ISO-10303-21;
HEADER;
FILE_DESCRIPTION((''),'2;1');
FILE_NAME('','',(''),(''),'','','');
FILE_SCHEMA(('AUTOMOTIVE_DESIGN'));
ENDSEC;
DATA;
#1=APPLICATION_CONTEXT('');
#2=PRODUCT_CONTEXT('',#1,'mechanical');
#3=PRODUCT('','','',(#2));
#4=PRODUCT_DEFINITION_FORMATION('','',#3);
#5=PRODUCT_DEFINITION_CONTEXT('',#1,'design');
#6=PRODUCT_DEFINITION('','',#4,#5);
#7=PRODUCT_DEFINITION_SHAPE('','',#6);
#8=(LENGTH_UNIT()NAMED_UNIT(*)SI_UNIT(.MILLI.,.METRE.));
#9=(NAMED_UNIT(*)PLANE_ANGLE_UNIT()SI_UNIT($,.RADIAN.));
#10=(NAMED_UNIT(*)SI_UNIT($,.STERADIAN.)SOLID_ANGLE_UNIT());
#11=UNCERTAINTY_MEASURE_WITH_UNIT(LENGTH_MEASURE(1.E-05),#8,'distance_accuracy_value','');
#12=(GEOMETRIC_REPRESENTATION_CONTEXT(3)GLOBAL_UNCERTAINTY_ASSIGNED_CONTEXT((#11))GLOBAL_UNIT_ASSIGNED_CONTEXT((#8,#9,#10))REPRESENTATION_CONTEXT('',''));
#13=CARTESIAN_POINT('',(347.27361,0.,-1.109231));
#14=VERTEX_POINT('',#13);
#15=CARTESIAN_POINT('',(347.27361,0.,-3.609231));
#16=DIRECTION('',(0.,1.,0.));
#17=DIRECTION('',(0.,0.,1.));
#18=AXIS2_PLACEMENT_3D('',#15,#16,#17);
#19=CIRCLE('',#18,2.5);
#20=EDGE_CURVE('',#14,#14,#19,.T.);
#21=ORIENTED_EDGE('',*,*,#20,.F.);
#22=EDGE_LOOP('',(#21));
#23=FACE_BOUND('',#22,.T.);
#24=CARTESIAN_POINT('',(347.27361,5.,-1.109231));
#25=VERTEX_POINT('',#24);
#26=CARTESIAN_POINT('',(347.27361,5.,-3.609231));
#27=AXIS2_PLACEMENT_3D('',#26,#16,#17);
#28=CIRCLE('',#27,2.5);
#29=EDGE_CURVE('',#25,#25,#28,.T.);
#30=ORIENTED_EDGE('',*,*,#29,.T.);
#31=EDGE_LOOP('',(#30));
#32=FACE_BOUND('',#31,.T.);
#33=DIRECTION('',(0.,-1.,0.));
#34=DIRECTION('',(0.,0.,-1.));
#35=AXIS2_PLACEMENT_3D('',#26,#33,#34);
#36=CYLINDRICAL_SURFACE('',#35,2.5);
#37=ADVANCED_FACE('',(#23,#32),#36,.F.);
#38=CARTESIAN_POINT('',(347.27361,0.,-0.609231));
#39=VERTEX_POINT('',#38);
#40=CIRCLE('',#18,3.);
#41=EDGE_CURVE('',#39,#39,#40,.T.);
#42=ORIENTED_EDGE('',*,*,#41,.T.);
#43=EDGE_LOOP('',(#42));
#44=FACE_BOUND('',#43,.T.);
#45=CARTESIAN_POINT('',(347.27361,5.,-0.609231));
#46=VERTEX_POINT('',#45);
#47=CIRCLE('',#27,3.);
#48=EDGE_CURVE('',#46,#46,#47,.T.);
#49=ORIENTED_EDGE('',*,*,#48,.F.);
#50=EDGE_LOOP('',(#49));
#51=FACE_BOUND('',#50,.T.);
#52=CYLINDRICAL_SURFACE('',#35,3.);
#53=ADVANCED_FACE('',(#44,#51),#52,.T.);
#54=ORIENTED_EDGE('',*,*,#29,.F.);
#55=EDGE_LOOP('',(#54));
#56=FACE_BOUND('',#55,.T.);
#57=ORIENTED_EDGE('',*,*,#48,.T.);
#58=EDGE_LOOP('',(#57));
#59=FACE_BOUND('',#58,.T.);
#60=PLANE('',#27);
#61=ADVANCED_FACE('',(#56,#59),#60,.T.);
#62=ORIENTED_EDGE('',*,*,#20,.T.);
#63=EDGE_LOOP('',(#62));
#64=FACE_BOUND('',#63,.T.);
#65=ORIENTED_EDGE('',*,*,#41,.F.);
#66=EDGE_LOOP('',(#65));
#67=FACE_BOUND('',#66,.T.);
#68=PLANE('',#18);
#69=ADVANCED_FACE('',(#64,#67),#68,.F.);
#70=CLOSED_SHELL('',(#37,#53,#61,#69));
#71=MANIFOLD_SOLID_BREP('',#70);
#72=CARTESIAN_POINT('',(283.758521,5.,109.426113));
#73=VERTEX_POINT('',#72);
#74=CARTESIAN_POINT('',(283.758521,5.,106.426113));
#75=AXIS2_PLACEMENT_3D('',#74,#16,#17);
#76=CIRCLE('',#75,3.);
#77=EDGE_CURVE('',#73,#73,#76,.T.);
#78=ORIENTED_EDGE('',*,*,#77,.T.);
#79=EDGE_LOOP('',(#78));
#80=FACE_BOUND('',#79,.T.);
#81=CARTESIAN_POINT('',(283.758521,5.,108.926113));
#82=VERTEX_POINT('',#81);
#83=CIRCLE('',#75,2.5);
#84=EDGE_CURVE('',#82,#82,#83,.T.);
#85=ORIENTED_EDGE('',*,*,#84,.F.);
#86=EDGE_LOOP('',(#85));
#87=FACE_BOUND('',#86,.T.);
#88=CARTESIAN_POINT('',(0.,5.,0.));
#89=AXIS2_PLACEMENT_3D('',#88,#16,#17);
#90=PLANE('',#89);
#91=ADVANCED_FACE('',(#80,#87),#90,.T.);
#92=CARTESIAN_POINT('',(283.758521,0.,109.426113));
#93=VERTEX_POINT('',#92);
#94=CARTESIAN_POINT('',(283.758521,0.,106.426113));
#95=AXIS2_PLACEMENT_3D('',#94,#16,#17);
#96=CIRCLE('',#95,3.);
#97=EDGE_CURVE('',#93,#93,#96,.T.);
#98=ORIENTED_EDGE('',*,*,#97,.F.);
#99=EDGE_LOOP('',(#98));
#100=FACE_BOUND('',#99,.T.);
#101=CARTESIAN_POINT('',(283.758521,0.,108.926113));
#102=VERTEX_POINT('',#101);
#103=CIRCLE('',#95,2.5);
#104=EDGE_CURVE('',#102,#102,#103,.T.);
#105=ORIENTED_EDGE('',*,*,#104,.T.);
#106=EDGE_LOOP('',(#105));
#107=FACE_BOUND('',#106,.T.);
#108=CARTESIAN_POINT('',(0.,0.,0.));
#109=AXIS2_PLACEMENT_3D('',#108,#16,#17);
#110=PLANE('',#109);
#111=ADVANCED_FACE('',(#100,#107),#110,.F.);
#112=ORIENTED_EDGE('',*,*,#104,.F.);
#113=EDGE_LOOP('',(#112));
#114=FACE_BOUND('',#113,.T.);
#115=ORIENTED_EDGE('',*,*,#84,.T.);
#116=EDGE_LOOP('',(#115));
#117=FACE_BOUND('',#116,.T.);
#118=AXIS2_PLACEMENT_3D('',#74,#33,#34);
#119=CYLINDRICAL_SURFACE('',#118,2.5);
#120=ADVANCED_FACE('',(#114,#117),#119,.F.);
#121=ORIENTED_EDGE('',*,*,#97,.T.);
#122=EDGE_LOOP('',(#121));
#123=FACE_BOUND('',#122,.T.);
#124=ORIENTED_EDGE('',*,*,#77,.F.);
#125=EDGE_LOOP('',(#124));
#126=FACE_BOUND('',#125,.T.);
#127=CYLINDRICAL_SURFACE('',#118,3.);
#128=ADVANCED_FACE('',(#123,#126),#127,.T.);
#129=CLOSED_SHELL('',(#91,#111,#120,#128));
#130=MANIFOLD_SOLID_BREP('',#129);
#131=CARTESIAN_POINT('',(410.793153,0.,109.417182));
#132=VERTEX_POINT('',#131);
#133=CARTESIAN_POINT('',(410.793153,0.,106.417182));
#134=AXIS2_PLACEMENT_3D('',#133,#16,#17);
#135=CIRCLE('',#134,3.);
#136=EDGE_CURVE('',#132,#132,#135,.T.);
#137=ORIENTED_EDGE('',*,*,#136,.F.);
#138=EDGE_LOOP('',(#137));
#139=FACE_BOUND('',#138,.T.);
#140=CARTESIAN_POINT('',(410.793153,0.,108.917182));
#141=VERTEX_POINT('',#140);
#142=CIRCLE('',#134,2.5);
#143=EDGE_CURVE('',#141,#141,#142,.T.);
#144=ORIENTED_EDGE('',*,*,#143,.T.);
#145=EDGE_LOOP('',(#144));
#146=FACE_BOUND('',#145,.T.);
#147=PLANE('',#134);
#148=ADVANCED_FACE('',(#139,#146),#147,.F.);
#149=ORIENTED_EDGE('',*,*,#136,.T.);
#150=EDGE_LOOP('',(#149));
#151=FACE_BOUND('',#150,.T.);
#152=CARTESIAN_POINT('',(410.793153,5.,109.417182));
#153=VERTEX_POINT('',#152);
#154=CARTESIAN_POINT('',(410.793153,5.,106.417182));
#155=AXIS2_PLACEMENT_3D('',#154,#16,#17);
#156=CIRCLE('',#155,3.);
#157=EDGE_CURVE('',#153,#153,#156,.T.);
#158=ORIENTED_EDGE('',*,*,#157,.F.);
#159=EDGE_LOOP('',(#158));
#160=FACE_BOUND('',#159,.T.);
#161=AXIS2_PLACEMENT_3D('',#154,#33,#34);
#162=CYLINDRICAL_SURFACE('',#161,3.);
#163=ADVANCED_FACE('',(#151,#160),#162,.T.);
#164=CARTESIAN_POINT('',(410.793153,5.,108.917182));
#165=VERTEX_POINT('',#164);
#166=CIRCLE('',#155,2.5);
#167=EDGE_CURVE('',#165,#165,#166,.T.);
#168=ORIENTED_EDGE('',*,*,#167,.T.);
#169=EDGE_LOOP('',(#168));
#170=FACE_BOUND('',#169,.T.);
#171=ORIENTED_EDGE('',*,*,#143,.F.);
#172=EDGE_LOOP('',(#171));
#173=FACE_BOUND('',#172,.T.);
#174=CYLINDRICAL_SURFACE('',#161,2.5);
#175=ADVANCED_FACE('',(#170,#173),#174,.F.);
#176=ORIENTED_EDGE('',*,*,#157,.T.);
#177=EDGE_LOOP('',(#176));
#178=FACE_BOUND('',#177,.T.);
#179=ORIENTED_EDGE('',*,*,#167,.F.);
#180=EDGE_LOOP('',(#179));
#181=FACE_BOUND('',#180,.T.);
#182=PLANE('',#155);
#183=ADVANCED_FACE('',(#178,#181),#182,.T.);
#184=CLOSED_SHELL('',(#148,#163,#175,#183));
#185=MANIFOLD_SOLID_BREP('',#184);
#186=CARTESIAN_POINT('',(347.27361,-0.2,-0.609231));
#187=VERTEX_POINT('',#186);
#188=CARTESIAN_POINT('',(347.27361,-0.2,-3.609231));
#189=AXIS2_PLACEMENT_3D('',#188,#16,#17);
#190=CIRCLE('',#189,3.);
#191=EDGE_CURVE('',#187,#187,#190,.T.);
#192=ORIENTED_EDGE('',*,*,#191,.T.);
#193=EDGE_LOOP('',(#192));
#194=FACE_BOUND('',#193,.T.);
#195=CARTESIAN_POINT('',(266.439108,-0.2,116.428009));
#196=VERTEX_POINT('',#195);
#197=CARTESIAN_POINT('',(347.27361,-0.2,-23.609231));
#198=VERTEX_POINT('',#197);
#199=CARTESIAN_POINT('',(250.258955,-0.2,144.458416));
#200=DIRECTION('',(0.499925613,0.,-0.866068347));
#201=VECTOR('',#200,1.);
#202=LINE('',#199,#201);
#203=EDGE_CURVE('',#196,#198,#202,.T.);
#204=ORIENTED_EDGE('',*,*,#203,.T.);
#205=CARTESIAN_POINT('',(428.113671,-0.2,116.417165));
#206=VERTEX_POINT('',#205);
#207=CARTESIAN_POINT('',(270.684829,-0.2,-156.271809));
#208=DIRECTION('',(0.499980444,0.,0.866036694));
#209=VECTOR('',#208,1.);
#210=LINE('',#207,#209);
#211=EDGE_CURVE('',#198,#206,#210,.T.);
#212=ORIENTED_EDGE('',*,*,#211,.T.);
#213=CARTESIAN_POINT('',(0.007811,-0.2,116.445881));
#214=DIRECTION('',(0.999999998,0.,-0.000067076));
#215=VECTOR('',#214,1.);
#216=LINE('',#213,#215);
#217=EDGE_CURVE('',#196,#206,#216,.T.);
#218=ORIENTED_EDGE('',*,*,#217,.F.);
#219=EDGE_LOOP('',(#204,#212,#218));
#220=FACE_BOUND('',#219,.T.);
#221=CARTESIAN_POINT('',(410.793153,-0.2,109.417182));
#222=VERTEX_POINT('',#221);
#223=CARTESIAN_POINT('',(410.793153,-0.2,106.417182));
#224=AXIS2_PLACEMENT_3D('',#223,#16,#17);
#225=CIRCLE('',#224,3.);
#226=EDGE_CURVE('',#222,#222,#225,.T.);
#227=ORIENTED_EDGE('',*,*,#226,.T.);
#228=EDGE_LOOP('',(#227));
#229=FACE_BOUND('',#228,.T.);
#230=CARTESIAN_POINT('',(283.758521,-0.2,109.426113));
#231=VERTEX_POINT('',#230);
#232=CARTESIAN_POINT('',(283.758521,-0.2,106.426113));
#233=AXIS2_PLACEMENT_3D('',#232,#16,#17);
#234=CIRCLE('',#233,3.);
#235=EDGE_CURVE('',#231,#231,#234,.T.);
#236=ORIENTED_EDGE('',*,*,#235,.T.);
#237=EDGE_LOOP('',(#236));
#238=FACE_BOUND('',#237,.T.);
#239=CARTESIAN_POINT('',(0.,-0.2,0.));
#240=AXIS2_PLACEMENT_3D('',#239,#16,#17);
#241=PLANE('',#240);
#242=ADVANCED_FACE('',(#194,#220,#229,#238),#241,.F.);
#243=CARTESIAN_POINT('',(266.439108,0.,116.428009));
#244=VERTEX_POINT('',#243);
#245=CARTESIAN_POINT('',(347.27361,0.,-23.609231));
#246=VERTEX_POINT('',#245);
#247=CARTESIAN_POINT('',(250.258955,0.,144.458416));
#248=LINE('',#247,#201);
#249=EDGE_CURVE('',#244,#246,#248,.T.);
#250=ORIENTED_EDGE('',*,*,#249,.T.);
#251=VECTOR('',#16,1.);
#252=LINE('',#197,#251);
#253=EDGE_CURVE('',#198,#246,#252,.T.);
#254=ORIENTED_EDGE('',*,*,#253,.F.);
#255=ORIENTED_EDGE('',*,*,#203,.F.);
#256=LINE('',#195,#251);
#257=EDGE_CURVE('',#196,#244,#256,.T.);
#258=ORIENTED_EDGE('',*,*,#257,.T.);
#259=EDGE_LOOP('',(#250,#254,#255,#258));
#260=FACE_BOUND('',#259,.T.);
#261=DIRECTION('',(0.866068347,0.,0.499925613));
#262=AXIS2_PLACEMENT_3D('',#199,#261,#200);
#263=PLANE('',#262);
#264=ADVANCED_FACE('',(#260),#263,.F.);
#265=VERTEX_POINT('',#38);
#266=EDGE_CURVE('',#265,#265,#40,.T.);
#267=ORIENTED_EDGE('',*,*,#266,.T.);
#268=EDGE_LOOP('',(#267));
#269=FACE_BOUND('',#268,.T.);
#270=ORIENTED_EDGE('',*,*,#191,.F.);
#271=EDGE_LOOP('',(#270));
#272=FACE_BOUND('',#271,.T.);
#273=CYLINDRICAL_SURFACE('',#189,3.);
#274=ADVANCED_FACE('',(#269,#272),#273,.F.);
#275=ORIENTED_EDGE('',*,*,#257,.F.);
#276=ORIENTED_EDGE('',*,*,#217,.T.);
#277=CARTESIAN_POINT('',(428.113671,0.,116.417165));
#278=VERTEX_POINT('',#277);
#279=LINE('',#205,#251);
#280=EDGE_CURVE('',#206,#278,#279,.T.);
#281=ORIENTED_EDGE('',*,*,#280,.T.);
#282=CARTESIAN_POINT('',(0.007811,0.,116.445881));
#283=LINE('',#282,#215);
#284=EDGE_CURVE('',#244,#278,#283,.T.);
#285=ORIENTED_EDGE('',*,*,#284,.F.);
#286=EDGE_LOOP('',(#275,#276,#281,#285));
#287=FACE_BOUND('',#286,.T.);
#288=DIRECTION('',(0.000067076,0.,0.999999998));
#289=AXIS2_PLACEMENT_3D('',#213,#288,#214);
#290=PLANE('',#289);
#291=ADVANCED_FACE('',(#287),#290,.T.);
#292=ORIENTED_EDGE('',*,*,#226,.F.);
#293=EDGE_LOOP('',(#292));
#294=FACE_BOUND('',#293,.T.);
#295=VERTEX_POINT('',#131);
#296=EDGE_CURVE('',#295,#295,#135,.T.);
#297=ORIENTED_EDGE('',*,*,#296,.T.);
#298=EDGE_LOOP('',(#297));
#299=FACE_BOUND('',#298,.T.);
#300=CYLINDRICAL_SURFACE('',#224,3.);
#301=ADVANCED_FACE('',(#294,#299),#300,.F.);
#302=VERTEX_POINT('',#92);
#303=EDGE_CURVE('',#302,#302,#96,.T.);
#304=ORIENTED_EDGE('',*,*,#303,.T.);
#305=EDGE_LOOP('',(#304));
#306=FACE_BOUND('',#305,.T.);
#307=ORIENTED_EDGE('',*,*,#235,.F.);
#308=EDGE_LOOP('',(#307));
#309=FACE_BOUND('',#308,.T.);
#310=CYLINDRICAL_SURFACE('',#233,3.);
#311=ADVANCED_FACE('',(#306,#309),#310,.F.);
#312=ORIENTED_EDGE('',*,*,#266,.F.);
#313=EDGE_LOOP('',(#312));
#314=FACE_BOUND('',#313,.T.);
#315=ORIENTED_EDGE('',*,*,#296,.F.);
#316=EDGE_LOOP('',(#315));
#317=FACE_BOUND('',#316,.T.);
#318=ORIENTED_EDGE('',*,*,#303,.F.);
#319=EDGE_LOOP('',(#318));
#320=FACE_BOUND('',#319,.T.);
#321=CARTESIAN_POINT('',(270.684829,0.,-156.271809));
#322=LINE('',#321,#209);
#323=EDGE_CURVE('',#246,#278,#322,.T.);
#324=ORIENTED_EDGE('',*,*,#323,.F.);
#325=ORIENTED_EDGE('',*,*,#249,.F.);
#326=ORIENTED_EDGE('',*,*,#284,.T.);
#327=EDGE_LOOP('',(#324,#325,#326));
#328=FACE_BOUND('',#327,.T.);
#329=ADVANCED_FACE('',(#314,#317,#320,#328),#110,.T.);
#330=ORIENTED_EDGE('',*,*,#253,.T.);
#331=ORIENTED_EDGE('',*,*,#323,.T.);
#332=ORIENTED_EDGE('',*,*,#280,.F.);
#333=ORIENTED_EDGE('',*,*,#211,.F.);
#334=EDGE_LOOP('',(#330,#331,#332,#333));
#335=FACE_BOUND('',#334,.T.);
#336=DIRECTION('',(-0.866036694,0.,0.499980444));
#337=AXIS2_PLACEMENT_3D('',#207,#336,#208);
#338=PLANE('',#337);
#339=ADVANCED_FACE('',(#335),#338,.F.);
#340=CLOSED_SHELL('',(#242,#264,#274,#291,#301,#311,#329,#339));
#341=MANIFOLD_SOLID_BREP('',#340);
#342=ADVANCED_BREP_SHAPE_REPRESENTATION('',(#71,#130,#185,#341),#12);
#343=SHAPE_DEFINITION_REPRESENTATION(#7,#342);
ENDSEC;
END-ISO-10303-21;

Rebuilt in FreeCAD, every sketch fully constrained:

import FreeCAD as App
import Part
import Sketcher
Q = App.Units.Quantity


def add_polygon(sketch, points):
    """Adds a closed chain of lines whose ends are joined by coincident constraints."""
    first, n = sketch.GeometryCount, len(points)
    for a, b in zip(points, points[1:] + points[:1]):
        sketch.addGeometry(Part.LineSegment(App.Vector(*a, 0), App.Vector(*b, 0)), False)
    for i in range(n):
        sketch.addConstraint(Sketcher.Constraint("Coincident", first + i, 2, first + (i + 1) % n, 1))

doc = App.newDocument("Part")
body = doc.addObject("PartDesign::Body", "Body")

# Sketch on XZ plane
sketch1 = body.newObject("Sketcher::SketchObject", "Sketch")
sketch1.AttachmentSupport = (doc.getObject("XZ_Plane"), [""])
sketch1.MapMode = "FlatFace"
add_polygon(sketch1, [(347.27361, -23.609231), (266.439108, 116.428009), (428.113671, 116.417165)])  # lines 0-2
sketch1.addGeometry(Part.Circle(App.Vector(410.793153, 106.417182, 0), App.Vector(0, 0, 1), 3), False)  # 3
sketch1.addGeometry(Part.Circle(App.Vector(283.758521, 106.426113, 0), App.Vector(0, 0, 1), 3), False)  # 4
sketch1.addGeometry(Part.Circle(App.Vector(347.27361, -3.609231, 0), App.Vector(0, 0, 1), 3), False)  # 5
sketch1.addConstraint([
    Sketcher.Constraint("Equal", 3, 4),
    Sketcher.Constraint("Equal", 4, 5),
    Sketcher.Constraint("Vertical", 5, 3, 2, 2),
    Sketcher.Constraint("Diameter", 3, Q("6 mm")),
    Sketcher.Constraint("DistanceY", 2, 2, 5, 3, Q("20 mm")),
    Sketcher.Constraint("DistanceX", 0, 2, 5, 3, Q("80.834501 mm")),
    Sketcher.Constraint("Distance", 0, Q("161.693059 mm")),
    Sketcher.Constraint("DistanceX", -1, 1, 4, 3, Q("283.758521 mm")),
    Sketcher.Constraint("DistanceX", -1, 1, 5, 3, Q("347.27361 mm")),
    Sketcher.Constraint("DistanceY", 5, 3, -1, 1, Q("3.609231 mm")),
    Sketcher.Constraint("DistanceX", -1, 1, 1, 2, Q("428.113671 mm")),
    Sketcher.Constraint("DistanceX", 4, 3, 3, 3, Q("127.034631 mm")),
    Sketcher.Constraint("DistanceY", 3, 3, 4, 3, Q("0.00893 mm")),
    Sketcher.Constraint("Distance", 2, Q("161.686446 mm")),
    Sketcher.Constraint("DistanceY", -1, 1, 3, 3, Q("106.417182 mm")),
])
pad1 = body.newObject("PartDesign::Pad", "Pad")
pad1.Profile = sketch1
pad1.Length = 0.2
body2 = doc.addObject("PartDesign::Body", "Body001")

# Sketch on XZ plane
sketch2 = body2.newObject("Sketcher::SketchObject", "Sketch001")
sketch2.AttachmentSupport = (doc.getObject("XZ_Plane001"), [""])
sketch2.MapMode = "FlatFace"
sketch2.addGeometry([
    Part.Circle(App.Vector(347.27361, -3.609231, 0), App.Vector(0, 0, 1), 3),
    Part.Circle(App.Vector(347.27361, -3.609231, 0), App.Vector(0, 0, 1), 2.5),
], False)
sketch2.addConstraint([
    Sketcher.Constraint("Coincident", 1, 3, 0, 3),
    Sketcher.Constraint("Diameter", 0, Q("6 mm")),
    Sketcher.Constraint("Diameter", 1, Q("5 mm")),
    Sketcher.Constraint("DistanceX", -1, 1, 0, 3, Q("347.27361 mm")),
    Sketcher.Constraint("DistanceY", 0, 3, -1, 1, Q("3.609231 mm")),
])
pad2 = body2.newObject("PartDesign::Pad", "Pad001")
pad2.Profile = sketch2
pad2.Length = 5
pad2.Reversed = True
body3 = doc.addObject("PartDesign::Body", "Body002")

# Sketch on XZ plane
sketch3 = body3.newObject("Sketcher::SketchObject", "Sketch002")
sketch3.AttachmentSupport = (doc.getObject("XZ_Plane002"), [""])
sketch3.MapMode = "FlatFace"
sketch3.addGeometry([
    Part.Circle(App.Vector(410.793153, 106.417182, 0), App.Vector(0, 0, 1), 3),
    Part.Circle(App.Vector(410.793153, 106.417182, 0), App.Vector(0, 0, 1), 2.5),
], False)
sketch3.addConstraint([
    Sketcher.Constraint("Coincident", 1, 3, 0, 3),
    Sketcher.Constraint("Diameter", 0, Q("6 mm")),
    Sketcher.Constraint("Diameter", 1, Q("5 mm")),
    Sketcher.Constraint("DistanceX", -1, 1, 0, 3, Q("410.793153 mm")),
    Sketcher.Constraint("DistanceY", -1, 1, 0, 3, Q("106.417182 mm")),
])
pad3 = body3.newObject("PartDesign::Pad", "Pad002")
pad3.Profile = sketch3
pad3.Length = 5
pad3.Reversed = True
body4 = doc.addObject("PartDesign::Body", "Body003")

# Sketch on XZ plane
sketch4 = body4.newObject("Sketcher::SketchObject", "Sketch003")
sketch4.AttachmentSupport = (doc.getObject("XZ_Plane003"), [""])
sketch4.MapMode = "FlatFace"
sketch4.addGeometry([
    Part.Circle(App.Vector(283.758521, 106.426113, 0), App.Vector(0, 0, 1), 3),
    Part.Circle(App.Vector(283.758521, 106.426113, 0), App.Vector(0, 0, 1), 2.5),
], False)
sketch4.addConstraint([
    Sketcher.Constraint("Coincident", 1, 3, 0, 3),
    Sketcher.Constraint("Diameter", 0, Q("6 mm")),
    Sketcher.Constraint("Diameter", 1, Q("5 mm")),
    Sketcher.Constraint("DistanceX", -1, 1, 0, 3, Q("283.758521 mm")),
    Sketcher.Constraint("DistanceY", -1, 1, 0, 3, Q("106.426113 mm")),
])
pad4 = body4.newObject("PartDesign::Pad", "Pad003")
pad4.Profile = sketch4
pad4.Length = 5
pad4.Reversed = True

doc.recompute()
